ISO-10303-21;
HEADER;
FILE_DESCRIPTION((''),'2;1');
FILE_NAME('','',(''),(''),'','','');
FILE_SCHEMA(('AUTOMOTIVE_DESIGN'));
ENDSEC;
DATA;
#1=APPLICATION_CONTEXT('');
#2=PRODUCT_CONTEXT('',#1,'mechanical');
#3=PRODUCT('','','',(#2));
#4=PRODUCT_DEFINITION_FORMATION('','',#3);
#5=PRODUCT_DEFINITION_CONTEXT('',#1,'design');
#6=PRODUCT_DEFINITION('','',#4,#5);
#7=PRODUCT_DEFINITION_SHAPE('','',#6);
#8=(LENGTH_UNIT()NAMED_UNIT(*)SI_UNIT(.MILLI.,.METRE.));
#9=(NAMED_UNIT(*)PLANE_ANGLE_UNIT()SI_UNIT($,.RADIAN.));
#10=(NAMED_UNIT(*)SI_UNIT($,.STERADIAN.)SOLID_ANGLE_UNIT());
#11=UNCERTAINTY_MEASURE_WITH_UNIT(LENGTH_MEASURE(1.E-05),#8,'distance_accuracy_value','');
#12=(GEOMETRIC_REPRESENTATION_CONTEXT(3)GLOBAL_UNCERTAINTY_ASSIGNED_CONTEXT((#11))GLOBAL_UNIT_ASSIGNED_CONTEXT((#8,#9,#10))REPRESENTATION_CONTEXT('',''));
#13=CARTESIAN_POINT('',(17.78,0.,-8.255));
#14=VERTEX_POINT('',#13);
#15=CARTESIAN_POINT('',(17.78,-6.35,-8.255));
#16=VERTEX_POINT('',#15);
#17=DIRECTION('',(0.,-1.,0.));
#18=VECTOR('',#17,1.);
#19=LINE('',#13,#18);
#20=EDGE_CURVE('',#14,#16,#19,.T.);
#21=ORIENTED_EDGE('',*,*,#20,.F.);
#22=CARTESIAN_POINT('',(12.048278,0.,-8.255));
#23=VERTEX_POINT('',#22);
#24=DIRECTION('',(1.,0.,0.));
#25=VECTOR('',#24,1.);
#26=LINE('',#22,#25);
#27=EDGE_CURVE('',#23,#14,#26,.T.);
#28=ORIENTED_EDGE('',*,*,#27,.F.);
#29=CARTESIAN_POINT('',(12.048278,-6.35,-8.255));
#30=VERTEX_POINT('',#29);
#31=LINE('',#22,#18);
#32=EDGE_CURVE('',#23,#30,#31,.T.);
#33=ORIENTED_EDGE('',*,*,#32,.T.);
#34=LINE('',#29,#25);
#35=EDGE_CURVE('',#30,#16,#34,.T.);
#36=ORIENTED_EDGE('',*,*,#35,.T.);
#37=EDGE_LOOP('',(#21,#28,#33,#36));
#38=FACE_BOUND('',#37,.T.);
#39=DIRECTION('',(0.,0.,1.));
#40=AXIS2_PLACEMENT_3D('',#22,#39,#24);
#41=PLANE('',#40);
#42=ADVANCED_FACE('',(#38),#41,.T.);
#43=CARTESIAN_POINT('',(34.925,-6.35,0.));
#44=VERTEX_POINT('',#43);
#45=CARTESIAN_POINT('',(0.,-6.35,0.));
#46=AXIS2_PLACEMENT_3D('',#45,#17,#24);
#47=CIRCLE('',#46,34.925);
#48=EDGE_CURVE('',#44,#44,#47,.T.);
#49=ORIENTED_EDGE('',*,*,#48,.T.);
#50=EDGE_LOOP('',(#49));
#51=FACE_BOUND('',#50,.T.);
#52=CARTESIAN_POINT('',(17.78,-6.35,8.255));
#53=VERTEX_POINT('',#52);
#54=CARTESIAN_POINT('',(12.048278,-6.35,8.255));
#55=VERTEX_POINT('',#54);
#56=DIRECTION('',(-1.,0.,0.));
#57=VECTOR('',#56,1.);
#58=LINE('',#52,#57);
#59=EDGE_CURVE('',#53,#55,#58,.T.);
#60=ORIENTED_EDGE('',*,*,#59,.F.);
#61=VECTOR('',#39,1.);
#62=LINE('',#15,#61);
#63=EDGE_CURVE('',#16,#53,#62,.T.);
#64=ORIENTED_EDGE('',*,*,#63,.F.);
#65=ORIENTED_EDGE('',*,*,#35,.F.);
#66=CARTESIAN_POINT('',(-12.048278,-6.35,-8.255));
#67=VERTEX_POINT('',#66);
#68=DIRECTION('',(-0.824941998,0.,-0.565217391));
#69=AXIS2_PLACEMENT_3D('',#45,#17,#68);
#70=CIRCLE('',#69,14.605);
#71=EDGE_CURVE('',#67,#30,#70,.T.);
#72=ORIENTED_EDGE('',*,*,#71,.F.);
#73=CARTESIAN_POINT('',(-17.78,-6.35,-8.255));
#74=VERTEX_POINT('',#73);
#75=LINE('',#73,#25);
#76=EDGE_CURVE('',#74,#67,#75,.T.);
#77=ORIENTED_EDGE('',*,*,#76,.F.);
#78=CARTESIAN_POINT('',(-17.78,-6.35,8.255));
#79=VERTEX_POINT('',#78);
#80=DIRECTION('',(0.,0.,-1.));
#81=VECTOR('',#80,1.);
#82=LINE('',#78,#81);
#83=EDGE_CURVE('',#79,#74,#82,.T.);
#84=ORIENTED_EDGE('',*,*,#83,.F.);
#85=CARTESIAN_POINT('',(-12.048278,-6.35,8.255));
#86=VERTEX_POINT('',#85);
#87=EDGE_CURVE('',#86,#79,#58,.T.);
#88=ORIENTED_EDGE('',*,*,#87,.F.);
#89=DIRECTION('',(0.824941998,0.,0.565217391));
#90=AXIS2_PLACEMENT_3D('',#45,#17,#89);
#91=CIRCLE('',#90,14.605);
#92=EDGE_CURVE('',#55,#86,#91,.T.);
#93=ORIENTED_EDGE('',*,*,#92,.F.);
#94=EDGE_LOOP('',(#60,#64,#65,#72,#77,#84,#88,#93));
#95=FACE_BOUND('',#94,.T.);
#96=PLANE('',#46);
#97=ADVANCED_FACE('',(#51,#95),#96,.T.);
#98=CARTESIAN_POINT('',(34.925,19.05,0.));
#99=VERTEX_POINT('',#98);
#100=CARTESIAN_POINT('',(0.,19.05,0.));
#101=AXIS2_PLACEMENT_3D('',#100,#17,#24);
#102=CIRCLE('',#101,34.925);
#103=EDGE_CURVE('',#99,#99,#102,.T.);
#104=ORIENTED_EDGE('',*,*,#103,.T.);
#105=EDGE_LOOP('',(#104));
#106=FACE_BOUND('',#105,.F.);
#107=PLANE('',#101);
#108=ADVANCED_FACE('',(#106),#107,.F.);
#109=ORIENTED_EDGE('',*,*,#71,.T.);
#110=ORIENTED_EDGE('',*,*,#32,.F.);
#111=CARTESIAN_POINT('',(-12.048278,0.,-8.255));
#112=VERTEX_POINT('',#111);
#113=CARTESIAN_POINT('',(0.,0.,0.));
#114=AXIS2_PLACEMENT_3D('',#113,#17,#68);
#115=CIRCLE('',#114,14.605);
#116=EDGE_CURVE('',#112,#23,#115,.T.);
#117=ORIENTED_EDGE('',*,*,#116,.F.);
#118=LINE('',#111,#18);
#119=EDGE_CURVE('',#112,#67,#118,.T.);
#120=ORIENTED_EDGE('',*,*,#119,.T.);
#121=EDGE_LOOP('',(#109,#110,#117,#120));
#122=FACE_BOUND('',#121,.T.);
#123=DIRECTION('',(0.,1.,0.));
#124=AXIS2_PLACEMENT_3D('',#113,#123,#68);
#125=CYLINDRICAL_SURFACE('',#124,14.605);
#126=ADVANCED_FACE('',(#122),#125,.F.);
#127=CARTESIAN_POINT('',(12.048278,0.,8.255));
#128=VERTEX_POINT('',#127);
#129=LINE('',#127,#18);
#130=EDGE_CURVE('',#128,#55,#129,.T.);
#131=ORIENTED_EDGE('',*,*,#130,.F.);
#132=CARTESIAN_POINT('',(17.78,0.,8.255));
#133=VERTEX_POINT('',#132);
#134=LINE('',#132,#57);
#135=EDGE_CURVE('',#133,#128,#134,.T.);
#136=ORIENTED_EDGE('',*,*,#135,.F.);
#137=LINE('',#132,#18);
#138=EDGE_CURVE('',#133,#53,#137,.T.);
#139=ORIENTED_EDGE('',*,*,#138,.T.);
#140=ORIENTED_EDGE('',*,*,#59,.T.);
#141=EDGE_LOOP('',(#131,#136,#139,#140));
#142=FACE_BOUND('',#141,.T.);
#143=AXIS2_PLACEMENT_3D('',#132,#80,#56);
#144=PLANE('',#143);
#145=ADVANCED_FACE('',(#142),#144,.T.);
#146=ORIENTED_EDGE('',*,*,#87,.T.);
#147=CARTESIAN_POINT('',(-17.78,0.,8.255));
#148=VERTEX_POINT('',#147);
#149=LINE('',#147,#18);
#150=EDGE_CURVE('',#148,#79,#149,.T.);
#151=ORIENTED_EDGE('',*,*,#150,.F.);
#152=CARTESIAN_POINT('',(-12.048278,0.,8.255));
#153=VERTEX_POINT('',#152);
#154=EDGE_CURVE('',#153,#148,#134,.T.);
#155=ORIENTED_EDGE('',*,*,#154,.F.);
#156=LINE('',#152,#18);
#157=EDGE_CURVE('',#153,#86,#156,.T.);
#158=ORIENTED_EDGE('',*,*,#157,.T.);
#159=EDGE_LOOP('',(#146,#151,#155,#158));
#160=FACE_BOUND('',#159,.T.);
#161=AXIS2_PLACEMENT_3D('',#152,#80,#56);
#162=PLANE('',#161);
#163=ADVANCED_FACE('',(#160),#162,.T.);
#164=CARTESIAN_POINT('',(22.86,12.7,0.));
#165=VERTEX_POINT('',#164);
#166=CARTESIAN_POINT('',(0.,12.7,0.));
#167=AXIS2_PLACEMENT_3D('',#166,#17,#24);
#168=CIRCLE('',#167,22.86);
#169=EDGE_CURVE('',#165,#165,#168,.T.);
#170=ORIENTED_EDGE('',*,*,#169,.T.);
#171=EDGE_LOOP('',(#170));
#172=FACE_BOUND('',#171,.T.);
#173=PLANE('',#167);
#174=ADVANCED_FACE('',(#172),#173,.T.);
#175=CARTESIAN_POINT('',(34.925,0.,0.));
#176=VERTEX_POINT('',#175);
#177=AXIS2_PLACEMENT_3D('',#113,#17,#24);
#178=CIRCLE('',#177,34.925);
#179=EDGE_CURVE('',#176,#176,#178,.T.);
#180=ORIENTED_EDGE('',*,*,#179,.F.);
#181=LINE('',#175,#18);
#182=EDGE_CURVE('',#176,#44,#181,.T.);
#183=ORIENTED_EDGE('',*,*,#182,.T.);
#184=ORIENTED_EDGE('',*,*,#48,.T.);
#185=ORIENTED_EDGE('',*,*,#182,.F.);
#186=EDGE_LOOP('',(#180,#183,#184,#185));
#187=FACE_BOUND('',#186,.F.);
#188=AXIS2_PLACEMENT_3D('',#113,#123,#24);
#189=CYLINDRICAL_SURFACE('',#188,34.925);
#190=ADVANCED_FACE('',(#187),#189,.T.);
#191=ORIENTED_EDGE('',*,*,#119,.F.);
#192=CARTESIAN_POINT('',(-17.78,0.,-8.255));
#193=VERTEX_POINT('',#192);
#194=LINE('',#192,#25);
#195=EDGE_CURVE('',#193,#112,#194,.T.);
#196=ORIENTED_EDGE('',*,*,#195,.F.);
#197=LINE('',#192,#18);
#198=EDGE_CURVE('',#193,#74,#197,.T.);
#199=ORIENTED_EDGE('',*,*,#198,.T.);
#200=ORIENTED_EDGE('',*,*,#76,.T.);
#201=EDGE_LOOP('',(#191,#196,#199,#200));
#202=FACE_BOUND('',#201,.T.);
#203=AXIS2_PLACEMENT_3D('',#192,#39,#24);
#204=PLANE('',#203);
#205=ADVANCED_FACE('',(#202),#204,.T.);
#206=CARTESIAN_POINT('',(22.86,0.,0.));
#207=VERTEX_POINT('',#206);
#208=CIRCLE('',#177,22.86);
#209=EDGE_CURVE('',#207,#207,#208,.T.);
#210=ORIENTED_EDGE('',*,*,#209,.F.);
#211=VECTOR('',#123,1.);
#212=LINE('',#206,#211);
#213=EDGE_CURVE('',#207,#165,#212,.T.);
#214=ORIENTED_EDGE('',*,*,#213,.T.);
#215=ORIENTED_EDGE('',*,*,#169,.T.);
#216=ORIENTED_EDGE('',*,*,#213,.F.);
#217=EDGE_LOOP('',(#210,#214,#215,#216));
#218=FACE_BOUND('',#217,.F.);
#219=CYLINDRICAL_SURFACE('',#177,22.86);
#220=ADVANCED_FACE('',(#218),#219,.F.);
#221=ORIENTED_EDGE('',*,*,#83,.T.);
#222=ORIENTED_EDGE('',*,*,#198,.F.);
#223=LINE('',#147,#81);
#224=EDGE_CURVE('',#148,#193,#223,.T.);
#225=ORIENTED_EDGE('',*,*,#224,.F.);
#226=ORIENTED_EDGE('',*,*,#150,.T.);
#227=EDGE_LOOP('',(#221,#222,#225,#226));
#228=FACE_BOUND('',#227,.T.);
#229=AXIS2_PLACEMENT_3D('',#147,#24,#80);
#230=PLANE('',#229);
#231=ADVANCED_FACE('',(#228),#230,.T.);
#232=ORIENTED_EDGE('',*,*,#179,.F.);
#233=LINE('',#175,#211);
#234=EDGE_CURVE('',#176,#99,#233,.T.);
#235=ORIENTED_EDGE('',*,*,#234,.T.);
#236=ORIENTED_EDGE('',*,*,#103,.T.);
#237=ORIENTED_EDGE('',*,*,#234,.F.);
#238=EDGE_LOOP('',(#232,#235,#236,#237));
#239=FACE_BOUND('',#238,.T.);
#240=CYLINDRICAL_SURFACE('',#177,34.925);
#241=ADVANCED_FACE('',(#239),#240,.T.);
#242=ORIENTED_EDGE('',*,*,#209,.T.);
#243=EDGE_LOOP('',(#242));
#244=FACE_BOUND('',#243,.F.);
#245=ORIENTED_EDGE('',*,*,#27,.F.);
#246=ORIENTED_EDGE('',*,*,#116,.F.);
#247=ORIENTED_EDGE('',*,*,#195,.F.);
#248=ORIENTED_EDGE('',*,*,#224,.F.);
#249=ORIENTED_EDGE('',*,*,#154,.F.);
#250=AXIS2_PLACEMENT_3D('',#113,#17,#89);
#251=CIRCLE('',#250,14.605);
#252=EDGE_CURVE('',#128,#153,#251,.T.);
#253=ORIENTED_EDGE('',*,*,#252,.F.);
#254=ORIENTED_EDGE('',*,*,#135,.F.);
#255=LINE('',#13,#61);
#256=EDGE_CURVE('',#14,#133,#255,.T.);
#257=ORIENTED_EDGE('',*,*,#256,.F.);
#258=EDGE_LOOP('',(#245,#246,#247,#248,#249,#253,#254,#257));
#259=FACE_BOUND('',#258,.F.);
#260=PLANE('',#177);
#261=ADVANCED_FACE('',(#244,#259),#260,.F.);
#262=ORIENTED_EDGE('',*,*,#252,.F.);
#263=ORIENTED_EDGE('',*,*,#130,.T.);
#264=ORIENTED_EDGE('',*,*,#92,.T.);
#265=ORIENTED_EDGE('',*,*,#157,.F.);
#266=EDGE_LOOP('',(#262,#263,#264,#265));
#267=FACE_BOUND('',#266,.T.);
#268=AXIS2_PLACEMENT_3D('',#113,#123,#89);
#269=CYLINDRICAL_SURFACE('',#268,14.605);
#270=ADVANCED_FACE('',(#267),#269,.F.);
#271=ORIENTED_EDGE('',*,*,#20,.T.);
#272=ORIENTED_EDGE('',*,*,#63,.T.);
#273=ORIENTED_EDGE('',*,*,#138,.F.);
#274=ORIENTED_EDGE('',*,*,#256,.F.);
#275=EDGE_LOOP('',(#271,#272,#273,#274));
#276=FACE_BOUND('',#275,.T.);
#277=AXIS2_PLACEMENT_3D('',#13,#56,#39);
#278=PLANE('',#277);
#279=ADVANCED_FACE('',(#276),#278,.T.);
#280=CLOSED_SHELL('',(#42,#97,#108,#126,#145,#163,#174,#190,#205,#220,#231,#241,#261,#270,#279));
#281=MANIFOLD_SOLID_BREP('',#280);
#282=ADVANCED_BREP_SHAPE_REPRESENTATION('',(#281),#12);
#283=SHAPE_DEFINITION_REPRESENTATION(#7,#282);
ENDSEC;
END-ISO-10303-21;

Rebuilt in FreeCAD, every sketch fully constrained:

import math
import FreeCAD as App
import Part
import Sketcher

V = App.Vector
Q = App.Units.Quantity

doc = App.newDocument("Part")
params = doc.addObject("Spreadsheet::Sheet", "Params")
for row, (alias, value) in enumerate([
    ("sketch1_diameter", "2.75 in"),
    ("pad1_length", "0.75 in"),
    ("sketch2_diameter", "1.8 in"),
    ("pocket1_length", "0.5 in"),
    ("sketch3_diameter", "2.75 in"),
    ("pad2_length", "0.25 in"),
    ("sketch4_radius", "0.575 in"),
    ("sketch4_height", "0.65 in"),
    ("pocket2_length", "0.25 in"),
], start=1):
    params.set(f"A{row}", alias)
    params.set(f"B{row}", "=" + value)
    params.setAlias(f"B{row}", alias)

body = doc.addObject("PartDesign::Body", "Body")

# Sketch on XZ plane
sketch1 = doc.addObject("Sketcher::SketchObject", "Sketch")
body.addObject(sketch1)
sketch1.AttachmentSupport = (doc.XZ_Plane, [""])
sketch1.MapMode = "FlatFace"
sketch1.addGeometry(Part.Circle(V(0, 0, 0), V(0, 0, 1), 35), False)
sketch1.addConstraint([
    Sketcher.Constraint("Coincident", 0, 3, -1, 1),
    Sketcher.Constraint("Diameter", 0, Q("2.75 in")),
])
sketch1.setExpression("Constraints[1]", "Params.sketch1_diameter")
pad1 = doc.addObject("PartDesign::Pad", "Pad")
body.addObject(pad1)
pad1.Profile = sketch1
pad1.setExpression("Length", "Params.pad1_length")
pad1.Reversed = True

# Sketch on XZ plane
sketch2 = doc.addObject("Sketcher::SketchObject", "Sketch001")
body.addObject(sketch2)
sketch2.AttachmentSupport = (doc.XZ_Plane, [""])
sketch2.MapMode = "FlatFace"
sketch2.addGeometry(Part.Circle(V(0, 0, 0), V(0, 0, 1), 23), False)
sketch2.addConstraint([
    Sketcher.Constraint("Coincident", 0, 3, -1, 1),
    Sketcher.Constraint("Diameter", 0, Q("1.8 in")),
])
sketch2.setExpression("Constraints[1]", "Params.sketch2_diameter")
pocket1 = doc.addObject("PartDesign::Pocket", "Pocket")
body.addObject(pocket1)
pocket1.Profile = sketch2
pocket1.setExpression("Length", "Params.pocket1_length")

# Sketch on XZ plane
sketch3 = doc.addObject("Sketcher::SketchObject", "Sketch002")
body.addObject(sketch3)
sketch3.AttachmentSupport = (doc.XZ_Plane, [""])
sketch3.MapMode = "FlatFace"
sketch3.addGeometry(Part.Circle(V(0, 0, 0), V(0, 0, 1), 35), False)
sketch3.addConstraint([
    Sketcher.Constraint("Coincident", 0, 3, -1, 1),
    Sketcher.Constraint("Diameter", 0, Q("2.75 in")),
])
sketch3.setExpression("Constraints[1]", "Params.sketch3_diameter")
pad2 = doc.addObject("PartDesign::Pad", "Pad001")
body.addObject(pad2)
pad2.Profile = sketch3
pad2.setExpression("Length", "Params.pad2_length")

# Sketch on XZ plane
sketch4 = doc.addObject("Sketcher::SketchObject", "Sketch003")
body.addObject(sketch4)
sketch4.AttachmentSupport = (doc.XZ_Plane, [""])
sketch4.MapMode = "FlatFace"
sketch4.addGeometry([
    Part.LineSegment(V(12, -8, 0), V(18, -8, 0)),  # 0
    Part.LineSegment(V(18, -8, 0), V(18, 8, 0)),  # 1
    Part.LineSegment(V(18, 8, 0), V(12, 8, 0)),  # 2
    Part.ArcOfCircle(Part.Circle(V(0, 0, 0), V(0, 0, 1), 15), math.radians(34), math.radians(146)),  # 3
    Part.LineSegment(V(-12, 8, 0), V(-18, 8, 0)),  # 4
    Part.LineSegment(V(-18, 8, 0), V(-18, -8, 0)),  # 5
    Part.LineSegment(V(-18, -8, 0), V(-12, -8, 0)),  # 6
    Part.ArcOfCircle(Part.Circle(V(0, 0, 0), V(0, 0, 1), 15), math.radians(-146), math.radians(-34)),  # 7
], False)
sketch4.addConstraint([
    Sketcher.Constraint("Coincident", 0, 2, 1, 1),
    Sketcher.Constraint("Coincident", 1, 2, 2, 1),
    Sketcher.Constraint("Coincident", 2, 2, 3, 1),
    Sketcher.Constraint("Coincident", 3, 2, 4, 1),
    Sketcher.Constraint("Coincident", 4, 2, 5, 1),
    Sketcher.Constraint("Coincident", 5, 2, 6, 1),
    Sketcher.Constraint("Coincident", 6, 2, 7, 1),
    Sketcher.Constraint("Coincident", 7, 2, 0, 1),
    Sketcher.Constraint("Horizontal", 0),
    Sketcher.Constraint("Vertical", 1),
    Sketcher.Constraint("Horizontal", 2),
    Sketcher.Constraint("Horizontal", 4),
    Sketcher.Constraint("Vertical", 5),
    Sketcher.Constraint("Horizontal", 6),
    Sketcher.Constraint("Coincident", 3, 3, -1, 1),
    Sketcher.Constraint("Coincident", 7, 3, -1, 1),
    Sketcher.Constraint("Equal", 3, 7),
    Sketcher.Constraint("Symmetric", 0, 2, 4, 2, -1, 1),
    Sketcher.Constraint("Horizontal", 2, 2, 3, 2),
    Sketcher.Constraint("Horizontal", 0, 2, 5, 2),
    Sketcher.Constraint("Radius", 3, Q("0.575 in")),
    Sketcher.Constraint("DistanceY", 1, 1, 1, 2, Q("0.65 in")),
    Sketcher.Constraint("DistanceX", -1, 1, 0, 2, Q("0.7 in")),
])
sketch4.setExpression("Constraints[20]", "Params.sketch4_radius")
sketch4.setExpression("Constraints[21]", "Params.sketch4_height")
pocket2 = doc.addObject("PartDesign::Pocket", "Pocket001")
body.addObject(pocket2)
pocket2.Profile = sketch4
pocket2.setExpression("Length", "Params.pocket2_length")
pocket2.Reversed = True

doc.recompute()
